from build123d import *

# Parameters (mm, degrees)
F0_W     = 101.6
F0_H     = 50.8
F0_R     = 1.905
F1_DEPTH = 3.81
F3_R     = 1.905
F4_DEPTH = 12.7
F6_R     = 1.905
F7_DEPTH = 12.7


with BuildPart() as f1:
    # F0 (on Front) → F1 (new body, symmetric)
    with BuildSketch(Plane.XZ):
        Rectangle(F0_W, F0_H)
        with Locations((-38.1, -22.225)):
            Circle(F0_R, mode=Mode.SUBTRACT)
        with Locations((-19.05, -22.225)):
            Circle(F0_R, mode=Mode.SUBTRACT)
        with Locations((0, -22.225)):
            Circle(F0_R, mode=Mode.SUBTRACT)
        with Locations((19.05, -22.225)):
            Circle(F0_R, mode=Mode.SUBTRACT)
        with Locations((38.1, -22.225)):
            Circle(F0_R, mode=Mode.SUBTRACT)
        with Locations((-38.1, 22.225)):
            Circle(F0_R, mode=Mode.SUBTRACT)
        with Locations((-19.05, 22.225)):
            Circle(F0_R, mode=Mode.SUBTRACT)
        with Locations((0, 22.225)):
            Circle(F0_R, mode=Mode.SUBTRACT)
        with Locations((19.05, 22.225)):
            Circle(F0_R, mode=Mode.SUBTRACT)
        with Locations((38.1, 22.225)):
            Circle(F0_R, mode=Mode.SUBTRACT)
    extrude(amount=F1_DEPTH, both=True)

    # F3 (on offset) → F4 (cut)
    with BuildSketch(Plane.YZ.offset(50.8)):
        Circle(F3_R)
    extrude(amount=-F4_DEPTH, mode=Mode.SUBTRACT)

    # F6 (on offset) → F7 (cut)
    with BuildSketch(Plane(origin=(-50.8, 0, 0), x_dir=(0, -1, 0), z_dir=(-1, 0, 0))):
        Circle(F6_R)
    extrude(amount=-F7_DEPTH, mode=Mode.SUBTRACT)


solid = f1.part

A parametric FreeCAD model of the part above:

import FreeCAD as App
import Part
import Sketcher
from FreeCAD import Vector
Q = App.Units.Quantity


def add_polygon(sketch, points):
    """Adds a closed chain of lines whose ends are joined by coincident constraints."""
    first, n = sketch.GeometryCount, len(points)
    for a, b in zip(points, points[1:] + points[:1]):
        sketch.addGeometry(Part.LineSegment(App.Vector(*a, 0), App.Vector(*b, 0)), False)
    for i in range(n):
        sketch.addConstraint(Sketcher.Constraint("Coincident", first + i, 2, first + (i + 1) % n, 1))

doc = App.newDocument("Part")
params = doc.addObject("Spreadsheet::Sheet", "Params")
for row, (alias, value) in enumerate([
    ("sketch1_diameter", "0.15 in"),
    ("sketch1_width", "4 in"),
    ("sketch1_height", "2 in"),
    ("pad1_length", "0.3 in"),
    ("sketch2_diameter", "0.15 in"),
    ("pocket1_length", "0.5 in"),
    ("sketch3_diameter", "0.15 in"),
    ("pocket2_length", "0.5 in"),
], start=1):
    params.set(f"A{row}", alias)
    params.set(f"B{row}", "=" + value)
    params.setAlias(f"B{row}", alias)

body = doc.addObject("PartDesign::Body", "Body")

# Sketch on XZ plane
sketch1 = body.newObject("Sketcher::SketchObject", "Sketch")
sketch1.AttachmentSupport = (doc.getObject("XZ_Plane"), [""])
sketch1.MapMode = "FlatFace"
add_polygon(sketch1, [(-50.8, 25.4), (-50.8, -25.4), (50.8, -25.4), (50.8, 25.4)])  # lines 0-3
sketch1.addGeometry(Part.Circle(Vector(-38.1, -22.2, 0), Vector(0, 0, 1), 1.9), False)  # 4
sketch1.addGeometry(Part.Circle(Vector(-19.1, -22.2, 0), Vector(0, 0, 1), 1.9), False)  # 5
sketch1.addGeometry(Part.Circle(Vector(0, -22.2, 0), Vector(0, 0, 1), 1.9), False)  # 6
sketch1.addGeometry(Part.Circle(Vector(19.1, -22.2, 0), Vector(0, 0, 1), 1.9), False)  # 7
sketch1.addGeometry(Part.Circle(Vector(38.1, -22.2, 0), Vector(0, 0, 1), 1.9), False)  # 8
sketch1.addGeometry(Part.Circle(Vector(-38.1, 22.2, 0), Vector(0, 0, 1), 1.9), False)  # 9
sketch1.addGeometry(Part.Circle(Vector(-19.1, 22.2, 0), Vector(0, 0, 1), 1.9), False)  # 10
sketch1.addGeometry(Part.Circle(Vector(0, 22.2, 0), Vector(0, 0, 1), 1.9), False)  # 11
sketch1.addGeometry(Part.Circle(Vector(19.1, 22.2, 0), Vector(0, 0, 1), 1.9), False)  # 12
sketch1.addGeometry(Part.Circle(Vector(38.1, 22.2, 0), Vector(0, 0, 1), 1.9), False)  # 13
sketch1.addConstraint([
    Sketcher.Constraint("Vertical", 0),
    Sketcher.Constraint("Horizontal", 1),
    Sketcher.Constraint("Vertical", 2),
    Sketcher.Constraint("Horizontal", 3),
    Sketcher.Constraint("Equal", 4, 5),
    Sketcher.Constraint("Equal", 5, 6),
    Sketcher.Constraint("Equal", 6, 7),
    Sketcher.Constraint("Equal", 7, 8),
    Sketcher.Constraint("Equal", 8, 9),
    Sketcher.Constraint("Equal", 9, 10),
    Sketcher.Constraint("Equal", 10, 11),
    Sketcher.Constraint("Equal", 11, 12),
    Sketcher.Constraint("Equal", 12, 13),
    Sketcher.Constraint("Symmetric", 8, 3, 9, 3, -1, 1),
    Sketcher.Constraint("Symmetric", 7, 3, 10, 3, -1, 1),
    Sketcher.Constraint("Symmetric", 6, 3, 11, 3, -1, 1),
    Sketcher.Constraint("Symmetric", 5, 3, 12, 3, -1, 1),
    Sketcher.Constraint("Symmetric", 4, 3, 13, 3, -1, 1),
    Sketcher.Constraint("Symmetric", 0, 2, 2, 2, -1, 1),
    Sketcher.Constraint("Symmetric", 5, 3, 7, 3, -2),
    Sketcher.Constraint("Symmetric", 4, 3, 8, 3, -2),
    Sketcher.Constraint("PointOnObject", 6, 3, -2),
    Sketcher.Constraint("Horizontal", 4, 3, 5, 3),
    Sketcher.Constraint("Horizontal", 5, 3, 6, 3),
    Sketcher.Constraint("Diameter", 4, Q("0.15 in")),
    Sketcher.Constraint("DistanceX", 1, 1, 1, 2, Q("4 in")),
    Sketcher.Constraint("DistanceY", 0, 2, 0, 1, Q("2 in")),
    Sketcher.Constraint("DistanceX", 4, 3, 8, 3, Q("3 in")),
    Sketcher.Constraint("DistanceX", 5, 3, 7, 3, Q("1.5 in")),
    Sketcher.Constraint("DistanceY", 4, 3, 9, 3, Q("1.75 in")),
])
sketch1.setExpression("Constraints[28]", "Params.sketch1_diameter")
sketch1.setExpression("Constraints[29]", "Params.sketch1_width")
sketch1.setExpression("Constraints[30]", "Params.sketch1_height")
pad1 = body.newObject("PartDesign::Pad", "Pad")
pad1.Profile = sketch1
pad1.setExpression("Length", "Params.pad1_length")
pad1.Midplane = True

# Sketch on YZ plane
sketch2 = body.newObject("Sketcher::SketchObject", "Sketch001")
sketch2.AttachmentSupport = (doc.getObject("YZ_Plane"), [""])
sketch2.MapMode = "FlatFace"
sketch2.AttachmentOffset = App.Placement(Vector(0, 0, 2 * 25.4), App.Rotation())
sketch2.addGeometry(Part.Circle(Vector(0, 0, 0), Vector(0, 0, 1), 1.9), False)
sketch2.addConstraint([
    Sketcher.Constraint("Coincident", 0, 3, -1, 1),
    Sketcher.Constraint("Diameter", 0, Q("0.15 in")),
])
sketch2.setExpression("Constraints[1]", "Params.sketch2_diameter")
pocket1 = body.newObject("PartDesign::Pocket", "Pocket")
pocket1.Profile = sketch2
pocket1.setExpression("Length", "Params.pocket1_length")

# Sketch on YZ plane
sketch3 = body.newObject("Sketcher::SketchObject", "Sketch002")
sketch3.AttachmentSupport = (doc.getObject("YZ_Plane"), [""])
sketch3.MapMode = "FlatFace"
sketch3.AttachmentOffset = App.Placement(Vector(0, 0, -2 * 25.4), App.Rotation())
sketch3.addGeometry(Part.Circle(Vector(0, 0, 0), Vector(0, 0, 1), 1.9), False)
sketch3.addConstraint([
    Sketcher.Constraint("Coincident", 0, 3, -1, 1),
    Sketcher.Constraint("Diameter", 0, Q("0.15 in")),
])
sketch3.setExpression("Constraints[1]", "Params.sketch3_diameter")
pocket2 = body.newObject("PartDesign::Pocket", "Pocket001")
pocket2.Profile = sketch3
pocket2.setExpression("Length", "Params.pocket2_length")
pocket2.Reversed = True

doc.recompute()
